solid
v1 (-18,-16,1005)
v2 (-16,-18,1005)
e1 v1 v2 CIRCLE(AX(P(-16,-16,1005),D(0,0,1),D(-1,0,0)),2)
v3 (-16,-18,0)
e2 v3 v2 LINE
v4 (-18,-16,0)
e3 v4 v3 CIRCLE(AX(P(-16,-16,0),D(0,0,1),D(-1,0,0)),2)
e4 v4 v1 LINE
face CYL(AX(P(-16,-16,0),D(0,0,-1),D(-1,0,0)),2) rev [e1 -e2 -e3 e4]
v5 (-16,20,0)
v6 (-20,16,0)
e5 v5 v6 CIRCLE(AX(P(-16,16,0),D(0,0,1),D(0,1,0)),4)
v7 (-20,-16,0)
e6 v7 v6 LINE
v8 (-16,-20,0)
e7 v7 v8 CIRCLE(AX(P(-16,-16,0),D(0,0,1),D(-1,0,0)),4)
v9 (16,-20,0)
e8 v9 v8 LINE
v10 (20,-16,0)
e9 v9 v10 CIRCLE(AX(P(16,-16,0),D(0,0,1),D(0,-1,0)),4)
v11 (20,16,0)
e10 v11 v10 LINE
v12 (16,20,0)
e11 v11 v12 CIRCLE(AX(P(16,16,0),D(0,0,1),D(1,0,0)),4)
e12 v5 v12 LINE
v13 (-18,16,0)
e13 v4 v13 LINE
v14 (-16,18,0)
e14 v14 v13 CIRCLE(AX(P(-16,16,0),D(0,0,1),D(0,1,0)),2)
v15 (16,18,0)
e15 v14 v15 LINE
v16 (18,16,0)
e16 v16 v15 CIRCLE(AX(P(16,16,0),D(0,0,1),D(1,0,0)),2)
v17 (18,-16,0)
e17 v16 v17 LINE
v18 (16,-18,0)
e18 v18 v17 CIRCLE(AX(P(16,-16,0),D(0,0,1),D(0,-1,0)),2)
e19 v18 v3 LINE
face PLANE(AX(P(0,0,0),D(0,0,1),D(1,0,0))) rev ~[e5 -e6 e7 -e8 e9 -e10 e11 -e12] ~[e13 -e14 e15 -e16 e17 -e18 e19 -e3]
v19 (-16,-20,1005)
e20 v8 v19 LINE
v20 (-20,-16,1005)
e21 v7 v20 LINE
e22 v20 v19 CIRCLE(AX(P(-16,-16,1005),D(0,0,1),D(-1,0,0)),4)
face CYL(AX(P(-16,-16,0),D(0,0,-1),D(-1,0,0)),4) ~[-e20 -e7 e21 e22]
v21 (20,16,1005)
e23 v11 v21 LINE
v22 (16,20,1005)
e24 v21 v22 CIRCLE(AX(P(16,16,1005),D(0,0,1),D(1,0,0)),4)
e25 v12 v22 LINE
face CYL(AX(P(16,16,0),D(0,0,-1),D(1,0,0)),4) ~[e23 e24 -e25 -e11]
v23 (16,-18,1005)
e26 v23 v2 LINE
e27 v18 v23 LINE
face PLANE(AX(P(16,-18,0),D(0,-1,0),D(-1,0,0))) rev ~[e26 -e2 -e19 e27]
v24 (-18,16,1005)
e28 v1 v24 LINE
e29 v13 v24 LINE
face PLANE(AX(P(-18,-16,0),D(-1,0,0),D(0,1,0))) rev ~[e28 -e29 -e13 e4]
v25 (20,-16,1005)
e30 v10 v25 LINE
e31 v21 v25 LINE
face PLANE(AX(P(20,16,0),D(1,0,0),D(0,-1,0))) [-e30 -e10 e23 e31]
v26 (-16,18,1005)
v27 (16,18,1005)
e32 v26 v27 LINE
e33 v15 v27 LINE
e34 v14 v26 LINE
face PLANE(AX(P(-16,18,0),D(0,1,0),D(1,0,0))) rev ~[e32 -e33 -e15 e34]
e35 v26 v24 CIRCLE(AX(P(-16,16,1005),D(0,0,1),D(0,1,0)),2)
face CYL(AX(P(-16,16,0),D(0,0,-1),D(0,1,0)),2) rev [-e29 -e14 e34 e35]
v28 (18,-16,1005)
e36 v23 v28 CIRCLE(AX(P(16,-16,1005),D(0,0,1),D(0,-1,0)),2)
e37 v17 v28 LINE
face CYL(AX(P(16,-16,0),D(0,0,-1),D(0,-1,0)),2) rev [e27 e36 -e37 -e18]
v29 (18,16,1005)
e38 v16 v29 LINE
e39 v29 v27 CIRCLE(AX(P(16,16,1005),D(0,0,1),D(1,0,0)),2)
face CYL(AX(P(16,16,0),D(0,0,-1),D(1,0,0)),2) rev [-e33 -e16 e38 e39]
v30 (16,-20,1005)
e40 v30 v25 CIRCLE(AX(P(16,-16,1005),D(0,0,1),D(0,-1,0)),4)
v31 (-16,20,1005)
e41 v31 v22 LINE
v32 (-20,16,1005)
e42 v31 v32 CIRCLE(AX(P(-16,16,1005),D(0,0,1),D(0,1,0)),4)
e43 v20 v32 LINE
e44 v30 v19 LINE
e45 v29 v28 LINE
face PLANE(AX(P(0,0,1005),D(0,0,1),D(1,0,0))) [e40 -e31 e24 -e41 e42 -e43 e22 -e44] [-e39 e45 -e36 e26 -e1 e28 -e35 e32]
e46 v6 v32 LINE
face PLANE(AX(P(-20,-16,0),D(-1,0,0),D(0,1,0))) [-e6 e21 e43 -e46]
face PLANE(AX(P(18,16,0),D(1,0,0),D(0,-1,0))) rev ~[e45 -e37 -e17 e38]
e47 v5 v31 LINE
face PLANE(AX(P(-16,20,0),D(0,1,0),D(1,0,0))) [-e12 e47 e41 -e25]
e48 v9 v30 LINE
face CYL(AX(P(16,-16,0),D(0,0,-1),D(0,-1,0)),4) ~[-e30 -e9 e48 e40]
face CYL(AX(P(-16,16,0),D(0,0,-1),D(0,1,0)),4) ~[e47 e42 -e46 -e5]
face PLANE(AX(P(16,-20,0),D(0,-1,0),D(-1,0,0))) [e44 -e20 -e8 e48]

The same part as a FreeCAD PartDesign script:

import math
import FreeCAD as App
import Part
import Sketcher
Q = App.Units.Quantity

doc = App.newDocument("Part")
body = doc.addObject("PartDesign::Body", "Body")

# Sketch on XY plane
sketch1 = body.newObject("Sketcher::SketchObject", "Sketch")
sketch1.AttachmentSupport = (doc.getObject("XY_Plane"), [""])
sketch1.MapMode = "FlatFace"
sketch1.addGeometry(Part.LineSegment(App.Vector(-20, 16, 0), App.Vector(-20, -16, 0)), False)
sketch1.addGeometry(Part.ArcOfCircle(Part.Circle(App.Vector(-16, -16, 0), App.Vector(0, 0, 1), 4), math.radians(180), math.radians(270)), False)
sketch1.addGeometry(Part.LineSegment(App.Vector(-16, -20, 0), App.Vector(16, -20, 0)), False)
sketch1.addGeometry(Part.ArcOfCircle(Part.Circle(App.Vector(16, -16, 0), App.Vector(0, 0, 1), 4), math.radians(-90), math.radians(0)), False)
sketch1.addGeometry(Part.LineSegment(App.Vector(20, -16, 0), App.Vector(20, 16, 0)), False)
sketch1.addGeometry(Part.ArcOfCircle(Part.Circle(App.Vector(16, 16, 0), App.Vector(0, 0, 1), 4), math.radians(0), math.radians(90)), False)
sketch1.addGeometry(Part.LineSegment(App.Vector(16, 20, 0), App.Vector(-16, 20, 0)), False)
sketch1.addGeometry(Part.ArcOfCircle(Part.Circle(App.Vector(-16, 16, 0), App.Vector(0, 0, 1), 4), math.radians(90), math.radians(180)), False)
sketch1.addGeometry(Part.ArcOfCircle(Part.Circle(App.Vector(-16, 16, 0), App.Vector(0, 0, 1), 2), math.radians(90), math.radians(180)), False)
sketch1.addGeometry(Part.LineSegment(App.Vector(-16, 18, 0), App.Vector(16, 18, 0)), False)
sketch1.addGeometry(Part.ArcOfCircle(Part.Circle(App.Vector(16, 16, 0), App.Vector(0, 0, 1), 2), math.radians(0), math.radians(90)), False)
sketch1.addGeometry(Part.LineSegment(App.Vector(18, 16, 0), App.Vector(18, -16, 0)), False)
sketch1.addGeometry(Part.ArcOfCircle(Part.Circle(App.Vector(16, -16, 0), App.Vector(0, 0, 1), 2), math.radians(-90), math.radians(0)), False)
sketch1.addGeometry(Part.LineSegment(App.Vector(16, -18, 0), App.Vector(-16, -18, 0)), False)
sketch1.addGeometry(Part.ArcOfCircle(Part.Circle(App.Vector(-16, -16, 0), App.Vector(0, 0, 1), 2), math.radians(180), math.radians(270)), False)
sketch1.addGeometry(Part.LineSegment(App.Vector(-18, -16, 0), App.Vector(-18, 16, 0)), False)
sketch1.addConstraint(Sketcher.Constraint("Tangent", 0, 2, 1, 1))
sketch1.addConstraint(Sketcher.Constraint("Tangent", 1, 2, 2, 1))
sketch1.addConstraint(Sketcher.Constraint("Tangent", 2, 2, 3, 1))
sketch1.addConstraint(Sketcher.Constraint("Tangent", 3, 2, 4, 1))
sketch1.addConstraint(Sketcher.Constraint("Tangent", 4, 2, 5, 1))
sketch1.addConstraint(Sketcher.Constraint("Tangent", 5, 2, 6, 1))
sketch1.addConstraint(Sketcher.Constraint("Tangent", 6, 2, 7, 1))
sketch1.addConstraint(Sketcher.Constraint("Tangent", 7, 2, 0, 1))
sketch1.addConstraint(Sketcher.Constraint("Tangent", 8, 1, 9, 1))
sketch1.addConstraint(Sketcher.Constraint("Tangent", 9, 2, 10, 2))
sketch1.addConstraint(Sketcher.Constraint("Tangent", 10, 1, 11, 1))
sketch1.addConstraint(Sketcher.Constraint("Tangent", 11, 2, 12, 2))
sketch1.addConstraint(Sketcher.Constraint("Tangent", 12, 1, 13, 1))
sketch1.addConstraint(Sketcher.Constraint("Tangent", 13, 2, 14, 2))
sketch1.addConstraint(Sketcher.Constraint("Tangent", 14, 1, 15, 1))
sketch1.addConstraint(Sketcher.Constraint("Tangent", 15, 2, 8, 2))
sketch1.addConstraint(Sketcher.Constraint("Vertical", 0))
sketch1.addConstraint(Sketcher.Constraint("Horizontal", 2))
sketch1.addConstraint(Sketcher.Constraint("Vertical", 4))
sketch1.addConstraint(Sketcher.Constraint("Horizontal", 6))
sketch1.addConstraint(Sketcher.Constraint("Horizontal", 9))
sketch1.addConstraint(Sketcher.Constraint("Vertical", 11))
sketch1.addConstraint(Sketcher.Constraint("Horizontal", 13))
sketch1.addConstraint(Sketcher.Constraint("Vertical", 15))
sketch1.addConstraint(Sketcher.Constraint("Coincident", 8, 3, 7, 3))
sketch1.addConstraint(Sketcher.Constraint("Coincident", 10, 3, 5, 3))
sketch1.addConstraint(Sketcher.Constraint("Coincident", 12, 3, 3, 3))
sketch1.addConstraint(Sketcher.Constraint("Equal", 1, 3))
sketch1.addConstraint(Sketcher.Constraint("Equal", 3, 5))
sketch1.addConstraint(Sketcher.Constraint("Equal", 5, 7))
sketch1.addConstraint(Sketcher.Constraint("Equal", 12, 14))
sketch1.addConstraint(Sketcher.Constraint("Symmetric", 1, 3, 5, 3, -1, 1))
sketch1.addConstraint(Sketcher.Constraint("Equal", 13, 0))
sketch1.addConstraint(Sketcher.Constraint("Radius", 1, Q("4 mm")))
sketch1.addConstraint(Sketcher.Constraint("Radius", 8, Q("2 mm")))
sketch1.addConstraint(Sketcher.Constraint("DistanceX", 0, 2, -1, 1, Q("20 mm")))
pad1 = body.newObject("PartDesign::Pad", "Pad")
pad1.Profile = sketch1
pad1.Length = 1005

doc.recompute()
